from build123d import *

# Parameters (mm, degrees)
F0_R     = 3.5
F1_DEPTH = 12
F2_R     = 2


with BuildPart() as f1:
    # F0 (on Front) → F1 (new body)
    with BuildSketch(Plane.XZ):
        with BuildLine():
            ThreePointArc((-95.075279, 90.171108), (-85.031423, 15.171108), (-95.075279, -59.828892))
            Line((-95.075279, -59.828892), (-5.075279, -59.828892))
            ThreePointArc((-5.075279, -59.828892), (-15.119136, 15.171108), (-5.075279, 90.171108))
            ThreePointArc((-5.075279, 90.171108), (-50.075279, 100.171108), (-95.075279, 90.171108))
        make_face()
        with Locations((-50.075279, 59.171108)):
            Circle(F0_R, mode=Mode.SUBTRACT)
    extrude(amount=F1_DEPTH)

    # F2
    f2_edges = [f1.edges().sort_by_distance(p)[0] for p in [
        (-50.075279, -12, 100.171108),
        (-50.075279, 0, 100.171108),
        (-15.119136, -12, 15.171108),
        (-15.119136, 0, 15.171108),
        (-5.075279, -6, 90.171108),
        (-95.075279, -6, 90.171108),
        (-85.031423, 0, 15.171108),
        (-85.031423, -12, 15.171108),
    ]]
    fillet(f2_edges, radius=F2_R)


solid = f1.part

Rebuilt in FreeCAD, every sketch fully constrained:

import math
import FreeCAD as App
import Part
import Sketcher
Q = App.Units.Quantity


def edges_at(feature, points):
    """Names of the edges that pass closest to the given points."""
    edges = feature.Shape.Edges
    near = lambda p: min(range(len(edges)), key=lambda i: edges[i].distToShape(Part.Vertex(*p))[0])
    return sorted({f"Edge{near(p) + 1}" for p in points})

doc = App.newDocument("Part")
params = doc.addObject("Spreadsheet::Sheet", "Params")
for row, (alias, value) in enumerate([
    ("sketch1_diameter", "7 mm"),
    ("sketch1_width", "90 mm"),
    ("sketch1_radius", "106.25 mm"),
    ("pad1_length", "12 mm"),
    ("fillet_radius", "2 mm"),
], start=1):
    params.set(f"A{row}", alias)
    params.set(f"B{row}", "=" + value)
    params.setAlias(f"B{row}", alias)

body = doc.addObject("PartDesign::Body", "Body")

# Sketch on XZ plane
sketch1 = body.newObject("Sketcher::SketchObject", "Sketch")
sketch1.AttachmentSupport = (doc.getObject("XZ_Plane"), [""])
sketch1.MapMode = "FlatFace"
sketch1.addGeometry(Part.ArcOfCircle(Part.Circle(App.Vector(-370.1, 15.2, 0), App.Vector(0, 0, 1), 285), math.radians(-15), math.radians(15)), False)
sketch1.addGeometry(Part.LineSegment(App.Vector(-95.1, -59.8, 0), App.Vector(-5.1, -59.8, 0)), False)
sketch1.addGeometry(Part.ArcOfCircle(Part.Circle(App.Vector(269.9, 15.2, 0), App.Vector(0, 0, 1), 285), math.radians(165), math.radians(195)), False)
sketch1.addGeometry(Part.ArcOfCircle(Part.Circle(App.Vector(-50.1, -6.1, 0), App.Vector(0, 0, 1), 106.2), math.radians(65), math.radians(115)), False)
sketch1.addGeometry(Part.Circle(App.Vector(-50.1, 59.2, 0), App.Vector(0, 0, 1), 3.5), False)
sketch1.addConstraint(Sketcher.Constraint("Coincident", 0, 1, 1, 1))
sketch1.addConstraint(Sketcher.Constraint("Coincident", 1, 2, 2, 2))
sketch1.addConstraint(Sketcher.Constraint("Coincident", 2, 1, 3, 1))
sketch1.addConstraint(Sketcher.Constraint("Coincident", 3, 2, 0, 2))
sketch1.addConstraint(Sketcher.Constraint("Horizontal", 1))
sketch1.addConstraint(Sketcher.Constraint("Horizontal", 0, 3, 2, 3))
sketch1.addConstraint(Sketcher.Constraint("Horizontal", 2, 1, 3, 2))
sketch1.addConstraint(Sketcher.Constraint("Vertical", 3, 3, 4, 3))
sketch1.addConstraint(Sketcher.Constraint("Vertical", 1, 2, 2, 1))
sketch1.addConstraint(Sketcher.Constraint("Diameter", 4, Q("7 mm")))
sketch1.addConstraint(Sketcher.Constraint("DistanceX", 1, 1, 1, 2, Q("90 mm")))
sketch1.addConstraint(Sketcher.Constraint("Radius", 3, Q("106.25 mm")))
sketch1.addConstraint(Sketcher.Constraint("DistanceY", 2, 3, 4, 3, Q("44 mm")))
sketch1.addConstraint(Sketcher.Constraint("DistanceY", 0, 1, 4, 3, Q("119 mm")))
sketch1.addConstraint(Sketcher.Constraint("Radius", 0, Q("285.043864 mm")))
sketch1.addConstraint(Sketcher.Constraint("Radius", 2, Q("285.043836 mm")))
sketch1.addConstraint(Sketcher.Constraint("DistanceX", -1, 1, 2, 3, Q("269.9247 mm")))
sketch1.addConstraint(Sketcher.Constraint("DistanceY", 3, 3, -1, 1, Q("6.078892 mm")))
sketch1.setExpression("Constraints[9]", "Params.sketch1_diameter")
sketch1.setExpression("Constraints[10]", "Params.sketch1_width")
sketch1.setExpression("Constraints[11]", "Params.sketch1_radius")
pad1 = body.newObject("PartDesign::Pad", "Pad")
pad1.Profile = sketch1
pad1.setExpression("Length", "Params.pad1_length")
doc.recompute()

fillet = body.newObject("PartDesign::Fillet", "Fillet")
fillet.Base = (pad1, edges_at(pad1, [
    (-50.075, -12, 100.171),
    (-50.075, 0, 100.171),
    (-15.119, -12, 15.171),
    (-15.119, 0, 15.171),
    (-5.075, -6, 90.171),
    (-95.075, -6, 90.171),
    (-85.031, 0, 15.171),
    (-85.031, -12, 15.171),
]))
fillet.setExpression("Radius", "Params.fillet_radius")

doc.recompute()
